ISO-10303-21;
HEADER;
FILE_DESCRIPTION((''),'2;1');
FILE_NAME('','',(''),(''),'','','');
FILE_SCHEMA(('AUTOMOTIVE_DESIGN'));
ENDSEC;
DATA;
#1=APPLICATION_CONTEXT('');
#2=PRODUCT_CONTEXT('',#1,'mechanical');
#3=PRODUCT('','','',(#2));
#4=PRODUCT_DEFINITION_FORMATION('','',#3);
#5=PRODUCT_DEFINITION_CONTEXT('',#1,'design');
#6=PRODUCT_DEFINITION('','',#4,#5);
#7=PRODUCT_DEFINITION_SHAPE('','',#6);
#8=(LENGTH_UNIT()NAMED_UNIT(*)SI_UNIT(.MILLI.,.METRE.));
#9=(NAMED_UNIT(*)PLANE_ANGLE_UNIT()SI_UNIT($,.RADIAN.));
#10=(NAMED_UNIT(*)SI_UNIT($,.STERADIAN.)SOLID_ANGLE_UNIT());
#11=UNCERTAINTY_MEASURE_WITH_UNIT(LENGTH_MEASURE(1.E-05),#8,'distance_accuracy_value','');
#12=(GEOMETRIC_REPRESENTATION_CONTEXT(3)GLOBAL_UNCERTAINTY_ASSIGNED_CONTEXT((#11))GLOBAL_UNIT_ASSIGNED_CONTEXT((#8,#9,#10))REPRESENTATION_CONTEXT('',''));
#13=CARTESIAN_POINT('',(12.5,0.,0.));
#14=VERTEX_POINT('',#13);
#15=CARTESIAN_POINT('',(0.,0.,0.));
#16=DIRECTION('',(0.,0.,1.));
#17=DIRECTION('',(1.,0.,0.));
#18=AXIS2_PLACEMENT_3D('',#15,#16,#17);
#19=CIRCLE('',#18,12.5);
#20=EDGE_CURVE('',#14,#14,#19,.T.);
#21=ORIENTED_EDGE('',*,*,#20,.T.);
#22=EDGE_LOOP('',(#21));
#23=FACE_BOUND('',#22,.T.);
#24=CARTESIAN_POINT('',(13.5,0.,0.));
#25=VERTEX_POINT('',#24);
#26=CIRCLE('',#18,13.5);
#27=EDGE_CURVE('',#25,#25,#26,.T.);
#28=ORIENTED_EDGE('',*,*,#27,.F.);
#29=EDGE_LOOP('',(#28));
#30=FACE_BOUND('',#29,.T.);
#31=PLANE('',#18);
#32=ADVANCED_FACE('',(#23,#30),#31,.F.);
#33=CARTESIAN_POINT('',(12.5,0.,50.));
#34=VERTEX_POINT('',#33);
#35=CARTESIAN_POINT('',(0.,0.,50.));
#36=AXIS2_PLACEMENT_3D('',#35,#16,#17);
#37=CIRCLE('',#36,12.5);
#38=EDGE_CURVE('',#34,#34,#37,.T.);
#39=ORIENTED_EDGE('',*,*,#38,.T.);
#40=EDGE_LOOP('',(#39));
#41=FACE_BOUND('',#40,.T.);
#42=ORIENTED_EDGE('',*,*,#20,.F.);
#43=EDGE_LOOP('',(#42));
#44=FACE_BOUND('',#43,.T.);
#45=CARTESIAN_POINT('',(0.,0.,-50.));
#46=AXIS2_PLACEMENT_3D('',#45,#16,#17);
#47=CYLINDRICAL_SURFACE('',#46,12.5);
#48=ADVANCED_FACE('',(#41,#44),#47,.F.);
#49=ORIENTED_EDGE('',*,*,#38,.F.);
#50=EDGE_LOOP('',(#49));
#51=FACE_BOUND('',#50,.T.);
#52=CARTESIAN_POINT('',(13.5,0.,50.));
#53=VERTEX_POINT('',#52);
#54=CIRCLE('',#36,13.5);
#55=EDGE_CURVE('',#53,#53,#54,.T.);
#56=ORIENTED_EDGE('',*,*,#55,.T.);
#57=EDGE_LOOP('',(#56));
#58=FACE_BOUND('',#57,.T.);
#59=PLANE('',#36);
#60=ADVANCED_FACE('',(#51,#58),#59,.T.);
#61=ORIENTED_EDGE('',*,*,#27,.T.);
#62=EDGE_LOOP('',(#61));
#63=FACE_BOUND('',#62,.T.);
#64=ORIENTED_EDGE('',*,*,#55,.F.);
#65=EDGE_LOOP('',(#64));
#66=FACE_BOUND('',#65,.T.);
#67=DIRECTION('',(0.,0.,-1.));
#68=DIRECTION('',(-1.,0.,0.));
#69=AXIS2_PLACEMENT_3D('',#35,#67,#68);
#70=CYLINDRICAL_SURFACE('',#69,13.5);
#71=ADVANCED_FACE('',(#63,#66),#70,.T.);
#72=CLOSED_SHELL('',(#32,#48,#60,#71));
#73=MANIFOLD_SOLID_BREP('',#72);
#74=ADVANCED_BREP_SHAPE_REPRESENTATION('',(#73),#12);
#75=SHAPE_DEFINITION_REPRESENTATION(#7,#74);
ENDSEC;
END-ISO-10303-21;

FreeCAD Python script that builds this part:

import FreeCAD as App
import Part
import Sketcher
from FreeCAD import Vector

doc = App.newDocument("Part")
body = doc.addObject("PartDesign::Body", "Body")

# Sketch on XY plane
sketch1 = body.newObject("Sketcher::SketchObject", "Sketch")
sketch1.AttachmentSupport = (doc.getObject("XY_Plane"), [""])
sketch1.MapMode = "FlatFace"
sketch1.addGeometry(Part.Circle(Vector(0, 0, 0), Vector(0, 0, 1), 13.5), False)
sketch1.addConstraint(Sketcher.Constraint("Coincident", 0, 3, -1, 1))
sketch1.addConstraint(Sketcher.Constraint("Diameter", 0, 27.0))
pad1 = body.newObject("PartDesign::Pad", "Pad")
pad1.Profile = sketch1
pad1.Length = 50

# Sketch on XY plane
sketch2 = body.newObject("Sketcher::SketchObject", "Sketch001")
sketch2.AttachmentSupport = (doc.getObject("XY_Plane"), [""])
sketch2.MapMode = "FlatFace"
sketch2.AttachmentOffset = App.Placement(Vector(0, 0, 50), App.Rotation())
sketch2.addGeometry(Part.Circle(Vector(0, 0, 0), Vector(0, 0, 1), 12.5), False)
sketch2.addConstraint(Sketcher.Constraint("Coincident", 0, 3, -1, 1))
sketch2.addConstraint(Sketcher.Constraint("Diameter", 0, 25.0))
pocket1 = body.newObject("PartDesign::Pocket", "Pocket")
pocket1.Profile = sketch2
pocket1.Length = 100

doc.recompute()
